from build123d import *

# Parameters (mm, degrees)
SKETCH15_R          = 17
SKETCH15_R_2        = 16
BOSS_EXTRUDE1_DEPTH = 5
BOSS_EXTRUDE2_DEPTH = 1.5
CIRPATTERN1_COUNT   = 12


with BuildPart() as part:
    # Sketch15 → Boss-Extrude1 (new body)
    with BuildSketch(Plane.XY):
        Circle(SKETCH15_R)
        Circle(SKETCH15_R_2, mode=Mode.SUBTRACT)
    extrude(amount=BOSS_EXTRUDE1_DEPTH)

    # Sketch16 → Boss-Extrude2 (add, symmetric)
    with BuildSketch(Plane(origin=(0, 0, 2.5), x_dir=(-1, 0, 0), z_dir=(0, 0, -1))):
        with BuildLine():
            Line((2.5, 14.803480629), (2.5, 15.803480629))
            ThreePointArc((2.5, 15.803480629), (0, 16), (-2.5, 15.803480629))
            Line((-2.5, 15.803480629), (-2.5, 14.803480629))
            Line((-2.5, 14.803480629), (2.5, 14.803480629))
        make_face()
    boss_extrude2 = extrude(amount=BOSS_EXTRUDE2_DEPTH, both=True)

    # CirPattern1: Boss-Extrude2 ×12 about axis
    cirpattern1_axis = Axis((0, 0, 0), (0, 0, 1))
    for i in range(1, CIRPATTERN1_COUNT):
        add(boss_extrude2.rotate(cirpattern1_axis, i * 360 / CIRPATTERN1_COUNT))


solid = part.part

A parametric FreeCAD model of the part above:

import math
import FreeCAD as App
import Part
import Sketcher

V = App.Vector
Q = App.Units.Quantity

doc = App.newDocument("Part")
body = doc.addObject("PartDesign::Body", "Body")

# Sketch on XY plane
sketch1 = body.newObject("Sketcher::SketchObject", "Sketch")
sketch1.AttachmentSupport = (doc.getObject("XY_Plane"), [""])
sketch1.MapMode = "FlatFace"
sketch1.addGeometry([
    Part.Circle(V(0, 0, 0), V(0, 0, 1), 17),
    Part.Circle(V(0, 0, 0), V(0, 0, 1), 16),
], False)
sketch1.addConstraint([
    Sketcher.Constraint("Coincident", 0, 3, -1, 1),
    Sketcher.Constraint("Coincident", 1, 3, -1, 1),
    Sketcher.Constraint("Diameter", 0, Q("34 mm")),
    Sketcher.Constraint("Diameter", 1, Q("32 mm")),
])
pad1 = body.newObject("PartDesign::Pad", "Pad")
pad1.Profile = sketch1
pad1.Length = 5

# Sketch on XY plane
sketch2 = body.newObject("Sketcher::SketchObject", "Sketch001")
sketch2.AttachmentSupport = (doc.getObject("XY_Plane"), [""])
sketch2.MapMode = "FlatFace"
sketch2.AttachmentOffset = App.Placement(V(0, 0, 2.5), App.Rotation())
sketch2.addGeometry([
    Part.LineSegment(V(-2.5, 14.8, 0), V(-2.5, 15.8, 0)),
    Part.ArcOfCircle(Part.Circle(V(0, 0, 0), V(0, 0, 1), 16), math.radians(81.01), math.radians(98.99)),
    Part.LineSegment(V(2.5, 15.8, 0), V(2.5, 14.8, 0)),
    Part.LineSegment(V(2.5, 14.8, 0), V(-2.5, 14.8, 0)),
], False)
sketch2.addConstraint([
    Sketcher.Constraint("Coincident", 0, 2, 1, 2),
    Sketcher.Constraint("Coincident", 1, 1, 2, 1),
    Sketcher.Constraint("Coincident", 2, 2, 3, 1),
    Sketcher.Constraint("Coincident", 3, 2, 0, 1),
    Sketcher.Constraint("Vertical", 0),
    Sketcher.Constraint("Vertical", 2),
    Sketcher.Constraint("Horizontal", 3),
    Sketcher.Constraint("Coincident", 1, 3, -1, 1),
    Sketcher.Constraint("Horizontal", 0, 2, 1, 1),
    Sketcher.Constraint("Radius", 1, Q("16 mm")),
    Sketcher.Constraint("DistanceX", 3, 2, 3, 1, Q("5 mm")),
    Sketcher.Constraint("DistanceY", 0, 1, 0, 2, Q("1 mm")),
])
pad2 = body.newObject("PartDesign::Pad", "Pad001")
pad2.Profile = sketch2
pad2.Length = 3
pad2.Midplane = True
doc.recompute()

polarpattern = body.newObject("PartDesign::PolarPattern", "PolarPattern")
polarpattern.Originals = [pad2]
polarpattern.Axis = (doc.getObject("Z_Axis"), [""])
polarpattern.Angle = 360
polarpattern.Occurrences = 12
body.Tip = polarpattern

doc.recompute()
